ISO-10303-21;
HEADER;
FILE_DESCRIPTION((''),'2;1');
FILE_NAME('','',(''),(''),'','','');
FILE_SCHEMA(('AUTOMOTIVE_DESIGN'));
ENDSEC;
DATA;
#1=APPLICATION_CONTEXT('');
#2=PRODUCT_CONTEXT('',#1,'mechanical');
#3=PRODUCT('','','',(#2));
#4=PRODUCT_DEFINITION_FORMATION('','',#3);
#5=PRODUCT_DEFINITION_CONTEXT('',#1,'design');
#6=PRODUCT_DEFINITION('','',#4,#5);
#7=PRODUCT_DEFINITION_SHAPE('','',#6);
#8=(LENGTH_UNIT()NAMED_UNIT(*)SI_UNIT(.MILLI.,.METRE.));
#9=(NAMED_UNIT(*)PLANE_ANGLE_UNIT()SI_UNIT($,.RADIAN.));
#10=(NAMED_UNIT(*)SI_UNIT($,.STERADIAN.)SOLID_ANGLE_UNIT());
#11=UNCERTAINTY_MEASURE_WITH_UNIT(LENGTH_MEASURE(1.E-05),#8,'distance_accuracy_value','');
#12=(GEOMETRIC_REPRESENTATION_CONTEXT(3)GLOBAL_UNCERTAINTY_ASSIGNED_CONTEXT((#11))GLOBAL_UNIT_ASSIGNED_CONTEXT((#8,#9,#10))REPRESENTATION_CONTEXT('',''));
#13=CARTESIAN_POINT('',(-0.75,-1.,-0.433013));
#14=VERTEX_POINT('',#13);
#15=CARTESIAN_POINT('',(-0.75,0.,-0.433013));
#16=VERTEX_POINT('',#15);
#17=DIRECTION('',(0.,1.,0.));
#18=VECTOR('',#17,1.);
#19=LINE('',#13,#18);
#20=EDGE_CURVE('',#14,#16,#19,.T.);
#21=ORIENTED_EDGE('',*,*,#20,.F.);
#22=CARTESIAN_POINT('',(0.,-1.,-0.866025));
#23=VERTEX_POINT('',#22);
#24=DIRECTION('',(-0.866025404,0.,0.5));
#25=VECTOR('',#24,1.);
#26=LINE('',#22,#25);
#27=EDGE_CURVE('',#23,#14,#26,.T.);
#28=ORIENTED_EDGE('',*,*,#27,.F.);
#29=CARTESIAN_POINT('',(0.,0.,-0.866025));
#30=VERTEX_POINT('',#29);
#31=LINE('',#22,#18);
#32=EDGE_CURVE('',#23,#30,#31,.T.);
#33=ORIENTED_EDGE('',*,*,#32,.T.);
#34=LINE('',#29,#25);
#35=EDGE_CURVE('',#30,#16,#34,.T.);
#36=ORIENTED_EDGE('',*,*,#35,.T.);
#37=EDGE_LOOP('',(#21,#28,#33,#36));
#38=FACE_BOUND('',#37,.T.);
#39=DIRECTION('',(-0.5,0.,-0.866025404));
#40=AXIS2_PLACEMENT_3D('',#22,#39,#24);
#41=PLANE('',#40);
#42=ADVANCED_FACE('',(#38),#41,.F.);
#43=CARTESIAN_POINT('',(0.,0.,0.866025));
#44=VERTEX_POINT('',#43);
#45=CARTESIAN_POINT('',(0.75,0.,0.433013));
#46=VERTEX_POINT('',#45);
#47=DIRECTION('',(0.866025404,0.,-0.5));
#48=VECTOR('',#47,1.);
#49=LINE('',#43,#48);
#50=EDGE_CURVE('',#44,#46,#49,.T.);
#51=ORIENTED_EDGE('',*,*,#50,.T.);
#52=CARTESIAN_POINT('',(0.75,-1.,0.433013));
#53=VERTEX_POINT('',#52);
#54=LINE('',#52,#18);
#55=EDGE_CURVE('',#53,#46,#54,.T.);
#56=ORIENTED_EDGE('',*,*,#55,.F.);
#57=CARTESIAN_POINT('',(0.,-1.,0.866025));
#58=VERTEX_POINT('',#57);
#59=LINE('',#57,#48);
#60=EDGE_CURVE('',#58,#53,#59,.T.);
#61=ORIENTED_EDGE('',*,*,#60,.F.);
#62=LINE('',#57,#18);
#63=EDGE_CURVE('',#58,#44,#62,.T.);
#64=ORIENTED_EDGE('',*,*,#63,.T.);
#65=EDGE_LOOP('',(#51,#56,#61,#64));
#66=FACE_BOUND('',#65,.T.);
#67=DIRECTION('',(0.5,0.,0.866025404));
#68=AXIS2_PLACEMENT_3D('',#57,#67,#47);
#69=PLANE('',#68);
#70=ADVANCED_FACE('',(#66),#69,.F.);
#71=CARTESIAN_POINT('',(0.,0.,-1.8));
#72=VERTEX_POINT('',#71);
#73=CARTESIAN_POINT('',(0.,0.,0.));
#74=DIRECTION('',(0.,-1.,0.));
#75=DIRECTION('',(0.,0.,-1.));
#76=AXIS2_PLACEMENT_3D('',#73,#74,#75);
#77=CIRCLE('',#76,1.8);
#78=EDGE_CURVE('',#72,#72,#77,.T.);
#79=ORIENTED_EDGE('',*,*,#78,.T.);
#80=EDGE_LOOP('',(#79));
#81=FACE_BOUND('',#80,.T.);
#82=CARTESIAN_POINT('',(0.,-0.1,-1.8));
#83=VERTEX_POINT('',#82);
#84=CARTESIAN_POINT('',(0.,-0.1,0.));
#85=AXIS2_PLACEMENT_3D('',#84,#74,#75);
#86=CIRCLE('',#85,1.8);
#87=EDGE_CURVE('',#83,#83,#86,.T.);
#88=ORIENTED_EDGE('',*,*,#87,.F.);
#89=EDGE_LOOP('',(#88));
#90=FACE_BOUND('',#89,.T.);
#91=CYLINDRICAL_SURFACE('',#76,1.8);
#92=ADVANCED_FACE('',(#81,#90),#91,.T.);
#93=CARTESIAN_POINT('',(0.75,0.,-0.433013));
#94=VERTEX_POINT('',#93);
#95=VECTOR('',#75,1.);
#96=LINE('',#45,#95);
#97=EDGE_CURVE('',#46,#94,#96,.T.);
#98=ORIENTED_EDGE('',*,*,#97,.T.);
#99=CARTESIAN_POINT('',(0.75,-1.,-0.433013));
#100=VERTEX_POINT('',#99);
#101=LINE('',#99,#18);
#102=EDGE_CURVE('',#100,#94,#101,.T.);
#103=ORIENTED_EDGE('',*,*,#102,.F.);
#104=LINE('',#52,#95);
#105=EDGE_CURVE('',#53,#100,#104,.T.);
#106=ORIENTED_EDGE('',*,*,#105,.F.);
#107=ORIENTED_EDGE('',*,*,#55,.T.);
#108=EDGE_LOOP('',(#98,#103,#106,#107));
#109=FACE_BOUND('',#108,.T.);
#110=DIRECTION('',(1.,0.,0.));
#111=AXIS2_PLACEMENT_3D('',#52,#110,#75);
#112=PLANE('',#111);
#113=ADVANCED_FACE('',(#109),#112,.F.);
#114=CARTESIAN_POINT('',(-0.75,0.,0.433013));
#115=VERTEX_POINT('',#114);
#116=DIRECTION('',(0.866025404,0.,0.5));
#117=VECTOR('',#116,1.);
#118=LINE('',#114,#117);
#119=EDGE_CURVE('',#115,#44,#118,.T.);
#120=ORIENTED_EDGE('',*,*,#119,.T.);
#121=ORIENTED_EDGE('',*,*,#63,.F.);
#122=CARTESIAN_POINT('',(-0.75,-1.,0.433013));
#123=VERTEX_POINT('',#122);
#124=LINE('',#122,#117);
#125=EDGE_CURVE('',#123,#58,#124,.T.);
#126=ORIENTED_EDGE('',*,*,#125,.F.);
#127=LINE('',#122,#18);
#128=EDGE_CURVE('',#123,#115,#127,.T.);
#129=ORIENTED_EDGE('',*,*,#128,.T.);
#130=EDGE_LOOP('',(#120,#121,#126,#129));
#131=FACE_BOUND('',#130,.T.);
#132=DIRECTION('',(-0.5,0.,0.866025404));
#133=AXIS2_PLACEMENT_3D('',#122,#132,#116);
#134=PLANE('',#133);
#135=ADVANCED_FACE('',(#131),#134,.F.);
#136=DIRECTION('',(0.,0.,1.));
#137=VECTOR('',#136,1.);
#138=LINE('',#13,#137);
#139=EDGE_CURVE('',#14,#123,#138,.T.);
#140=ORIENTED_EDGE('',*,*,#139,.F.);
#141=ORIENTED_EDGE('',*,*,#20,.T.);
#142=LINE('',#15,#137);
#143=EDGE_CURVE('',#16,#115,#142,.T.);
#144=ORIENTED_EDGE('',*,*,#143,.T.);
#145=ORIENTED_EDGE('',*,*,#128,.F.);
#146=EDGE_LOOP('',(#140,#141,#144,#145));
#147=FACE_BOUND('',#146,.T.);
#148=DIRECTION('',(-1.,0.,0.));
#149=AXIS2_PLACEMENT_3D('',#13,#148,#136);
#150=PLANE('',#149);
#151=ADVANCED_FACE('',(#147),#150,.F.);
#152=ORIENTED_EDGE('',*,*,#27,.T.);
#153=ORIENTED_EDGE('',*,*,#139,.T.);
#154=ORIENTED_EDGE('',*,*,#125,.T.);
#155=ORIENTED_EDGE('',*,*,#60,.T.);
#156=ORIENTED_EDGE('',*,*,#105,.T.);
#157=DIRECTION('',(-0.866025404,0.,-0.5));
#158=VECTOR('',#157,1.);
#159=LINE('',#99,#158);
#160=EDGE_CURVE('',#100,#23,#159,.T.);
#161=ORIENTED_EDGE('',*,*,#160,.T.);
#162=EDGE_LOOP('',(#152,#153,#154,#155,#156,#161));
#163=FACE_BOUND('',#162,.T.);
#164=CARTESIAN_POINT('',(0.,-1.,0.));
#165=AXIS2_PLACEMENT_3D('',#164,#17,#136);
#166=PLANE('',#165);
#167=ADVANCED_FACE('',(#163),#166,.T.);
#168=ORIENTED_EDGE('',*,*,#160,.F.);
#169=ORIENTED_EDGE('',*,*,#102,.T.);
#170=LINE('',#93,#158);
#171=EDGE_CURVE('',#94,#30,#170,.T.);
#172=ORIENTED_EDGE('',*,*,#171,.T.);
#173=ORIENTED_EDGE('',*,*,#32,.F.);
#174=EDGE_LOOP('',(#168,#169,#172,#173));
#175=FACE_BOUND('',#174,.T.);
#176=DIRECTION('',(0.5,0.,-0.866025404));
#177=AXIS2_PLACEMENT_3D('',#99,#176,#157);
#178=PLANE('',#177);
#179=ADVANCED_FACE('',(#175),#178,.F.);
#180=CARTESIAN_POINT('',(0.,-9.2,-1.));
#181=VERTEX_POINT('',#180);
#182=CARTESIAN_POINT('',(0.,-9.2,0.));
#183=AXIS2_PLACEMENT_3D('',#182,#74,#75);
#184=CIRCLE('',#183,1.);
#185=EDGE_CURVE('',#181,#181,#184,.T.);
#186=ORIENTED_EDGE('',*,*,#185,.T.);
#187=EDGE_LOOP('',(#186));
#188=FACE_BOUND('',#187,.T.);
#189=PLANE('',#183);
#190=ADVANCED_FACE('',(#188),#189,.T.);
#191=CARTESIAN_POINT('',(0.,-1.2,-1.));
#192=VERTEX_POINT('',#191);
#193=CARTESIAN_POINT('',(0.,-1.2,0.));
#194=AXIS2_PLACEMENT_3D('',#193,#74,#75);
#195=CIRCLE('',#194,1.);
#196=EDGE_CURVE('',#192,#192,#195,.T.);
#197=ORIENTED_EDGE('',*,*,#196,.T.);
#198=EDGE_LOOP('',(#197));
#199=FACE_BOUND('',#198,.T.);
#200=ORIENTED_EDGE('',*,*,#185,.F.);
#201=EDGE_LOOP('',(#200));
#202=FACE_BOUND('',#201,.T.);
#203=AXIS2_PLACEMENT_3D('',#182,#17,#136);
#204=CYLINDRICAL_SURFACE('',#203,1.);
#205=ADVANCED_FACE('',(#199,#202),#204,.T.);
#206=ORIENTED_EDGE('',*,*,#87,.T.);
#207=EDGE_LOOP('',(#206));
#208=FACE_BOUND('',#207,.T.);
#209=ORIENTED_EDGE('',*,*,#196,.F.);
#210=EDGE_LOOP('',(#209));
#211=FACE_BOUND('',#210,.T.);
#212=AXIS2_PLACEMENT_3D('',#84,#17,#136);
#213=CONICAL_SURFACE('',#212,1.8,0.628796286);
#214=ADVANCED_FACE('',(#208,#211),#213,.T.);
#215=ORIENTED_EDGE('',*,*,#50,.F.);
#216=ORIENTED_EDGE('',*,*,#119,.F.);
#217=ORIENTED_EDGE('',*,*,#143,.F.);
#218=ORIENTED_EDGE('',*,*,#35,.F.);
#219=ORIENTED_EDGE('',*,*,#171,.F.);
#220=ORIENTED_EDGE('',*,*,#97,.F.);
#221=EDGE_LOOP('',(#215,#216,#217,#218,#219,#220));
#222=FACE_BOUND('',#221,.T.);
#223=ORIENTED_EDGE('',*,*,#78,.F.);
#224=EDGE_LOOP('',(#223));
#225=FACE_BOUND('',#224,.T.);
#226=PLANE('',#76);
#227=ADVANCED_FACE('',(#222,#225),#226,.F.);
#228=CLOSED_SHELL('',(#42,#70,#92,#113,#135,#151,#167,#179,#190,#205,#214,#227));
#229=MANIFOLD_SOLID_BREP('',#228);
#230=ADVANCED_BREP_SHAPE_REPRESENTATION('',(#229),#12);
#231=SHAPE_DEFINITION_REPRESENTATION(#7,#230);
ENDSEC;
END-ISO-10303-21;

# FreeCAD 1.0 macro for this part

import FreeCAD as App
import Part
import Sketcher
from FreeCAD import Vector
Q = App.Units.Quantity

doc = App.newDocument("Part")
body = doc.addObject("PartDesign::Body", "Body")

# Sketch on XY plane
sketch1 = body.newObject("Sketcher::SketchObject", "Sketch")
sketch1.AttachmentSupport = (doc.getObject("XY_Plane"), [""])
sketch1.MapMode = "FlatFace"
sketch1.addGeometry(Part.LineSegment(Vector(0, 0, 0), Vector(0, -1.2, 0)), False)
sketch1.addGeometry(Part.LineSegment(Vector(0, -1.2, 0), Vector(1, -1.2, 0)), False)
sketch1.addGeometry(Part.LineSegment(Vector(1, -1.2, 0), Vector(1.8, -0.1, 0)), False)
sketch1.addGeometry(Part.LineSegment(Vector(1.8, -0.1, 0), Vector(1.8, 0, 0)), False)
sketch1.addGeometry(Part.LineSegment(Vector(1.8, 0, 0), Vector(0, 0, 0)), False)
sketch1.addConstraint(Sketcher.Constraint("Coincident", 0, 2, 1, 1))
sketch1.addConstraint(Sketcher.Constraint("Coincident", 1, 2, 2, 1))
sketch1.addConstraint(Sketcher.Constraint("Coincident", 2, 2, 3, 1))
sketch1.addConstraint(Sketcher.Constraint("Coincident", 3, 2, 4, 1))
sketch1.addConstraint(Sketcher.Constraint("Coincident", 4, 2, 0, 1))
sketch1.addConstraint(Sketcher.Constraint("Vertical", 0))
sketch1.addConstraint(Sketcher.Constraint("Horizontal", 1))
sketch1.addConstraint(Sketcher.Constraint("Vertical", 3))
sketch1.addConstraint(Sketcher.Constraint("Horizontal", 4))
sketch1.addConstraint(Sketcher.Constraint("Coincident", 4, 2, -1, 1))
sketch1.addConstraint(Sketcher.Constraint("DistanceX", 1, 1, 1, 2, Q("1 mm")))
sketch1.addConstraint(Sketcher.Constraint("DistanceX", 4, 2, 4, 1, Q("1.8 mm")))
sketch1.addConstraint(Sketcher.Constraint("DistanceY", 0, 2, 0, 1, Q("1.2 mm")))
sketch1.addConstraint(Sketcher.Constraint("DistanceY", 3, 1, 3, 2, Q("0.1 mm")))
revolution = body.newObject("PartDesign::Revolution", "Revolution")
revolution.Profile = sketch1
revolution.ReferenceAxis = (sketch1, ["V_Axis"])
revolution.Angle = 360

# Sketch on XZ plane
sketch2 = body.newObject("Sketcher::SketchObject", "Sketch001")
sketch2.AttachmentSupport = (doc.getObject("XZ_Plane"), [""])
sketch2.MapMode = "FlatFace"
sketch2.addGeometry(Part.LineSegment(Vector(0, 0.866025, 0), Vector(0.75, 0.433013, 0)), False)
sketch2.addGeometry(Part.LineSegment(Vector(0.75, 0.433013, 0), Vector(0.75, -0.433013, 0)), False)
sketch2.addGeometry(Part.LineSegment(Vector(0.75, -0.433013, 0), Vector(0, -0.866025, 0)), False)
sketch2.addGeometry(Part.LineSegment(Vector(0, -0.866025, 0), Vector(-0.75, -0.433013, 0)), False)
sketch2.addGeometry(Part.LineSegment(Vector(-0.75, -0.433013, 0), Vector(-0.75, 0.433013, 0)), False)
sketch2.addGeometry(Part.LineSegment(Vector(-0.75, 0.433013, 0), Vector(0, 0.866025, 0)), False)
sketch2.addConstraint(Sketcher.Constraint("Coincident", 0, 2, 1, 1))
sketch2.addConstraint(Sketcher.Constraint("Coincident", 1, 2, 2, 1))
sketch2.addConstraint(Sketcher.Constraint("Coincident", 2, 2, 3, 1))
sketch2.addConstraint(Sketcher.Constraint("Coincident", 3, 2, 4, 1))
sketch2.addConstraint(Sketcher.Constraint("Coincident", 4, 2, 5, 1))
sketch2.addConstraint(Sketcher.Constraint("Coincident", 5, 2, 0, 1))
sketch2.addConstraint(Sketcher.Constraint("Vertical", 1))
sketch2.addConstraint(Sketcher.Constraint("Vertical", 4))
sketch2.addConstraint(Sketcher.Constraint("Symmetric", 0, 2, 3, 2, -1, 1))
sketch2.addConstraint(Sketcher.Constraint("Symmetric", 2, 2, 5, 2, -1, 1))
sketch2.addConstraint(Sketcher.Constraint("PointOnObject", 2, 2, -2))
sketch2.addConstraint(Sketcher.Constraint("Parallel", 2, 5))
sketch2.addConstraint(Sketcher.Constraint("Horizontal", 1, 2, 3, 2))
sketch2.addConstraint(Sketcher.Constraint("Angle", 0, Q("-30 deg")))
sketch2.addConstraint(Sketcher.Constraint("DistanceX", 3, 2, 1, 2, Q("1.5 mm")))
sketch2.addConstraint(Sketcher.Constraint("DistanceY", 1, 2, 1, 1, Q("0.866025 mm")))
pocket1 = body.newObject("PartDesign::Pocket", "Pocket")
pocket1.Profile = sketch2
pocket1.Length = 1
pocket1.Reversed = True

# Sketch on XZ plane
sketch3 = body.newObject("Sketcher::SketchObject", "Sketch002")
sketch3.AttachmentSupport = (doc.getObject("XZ_Plane"), [""])
sketch3.MapMode = "FlatFace"
sketch3.AttachmentOffset = App.Placement(Vector(0, 0, 1.2), App.Rotation())
sketch3.addGeometry(Part.Circle(Vector(0, 0, 0), Vector(0, 0, 1), 1), False)
sketch3.addConstraint(Sketcher.Constraint("Coincident", 0, 3, -1, 1))
sketch3.addConstraint(Sketcher.Constraint("Diameter", 0, Q("2 mm")))
pad1 = body.newObject("PartDesign::Pad", "Pad")
pad1.Profile = sketch3
pad1.Length = 8

doc.recompute()
